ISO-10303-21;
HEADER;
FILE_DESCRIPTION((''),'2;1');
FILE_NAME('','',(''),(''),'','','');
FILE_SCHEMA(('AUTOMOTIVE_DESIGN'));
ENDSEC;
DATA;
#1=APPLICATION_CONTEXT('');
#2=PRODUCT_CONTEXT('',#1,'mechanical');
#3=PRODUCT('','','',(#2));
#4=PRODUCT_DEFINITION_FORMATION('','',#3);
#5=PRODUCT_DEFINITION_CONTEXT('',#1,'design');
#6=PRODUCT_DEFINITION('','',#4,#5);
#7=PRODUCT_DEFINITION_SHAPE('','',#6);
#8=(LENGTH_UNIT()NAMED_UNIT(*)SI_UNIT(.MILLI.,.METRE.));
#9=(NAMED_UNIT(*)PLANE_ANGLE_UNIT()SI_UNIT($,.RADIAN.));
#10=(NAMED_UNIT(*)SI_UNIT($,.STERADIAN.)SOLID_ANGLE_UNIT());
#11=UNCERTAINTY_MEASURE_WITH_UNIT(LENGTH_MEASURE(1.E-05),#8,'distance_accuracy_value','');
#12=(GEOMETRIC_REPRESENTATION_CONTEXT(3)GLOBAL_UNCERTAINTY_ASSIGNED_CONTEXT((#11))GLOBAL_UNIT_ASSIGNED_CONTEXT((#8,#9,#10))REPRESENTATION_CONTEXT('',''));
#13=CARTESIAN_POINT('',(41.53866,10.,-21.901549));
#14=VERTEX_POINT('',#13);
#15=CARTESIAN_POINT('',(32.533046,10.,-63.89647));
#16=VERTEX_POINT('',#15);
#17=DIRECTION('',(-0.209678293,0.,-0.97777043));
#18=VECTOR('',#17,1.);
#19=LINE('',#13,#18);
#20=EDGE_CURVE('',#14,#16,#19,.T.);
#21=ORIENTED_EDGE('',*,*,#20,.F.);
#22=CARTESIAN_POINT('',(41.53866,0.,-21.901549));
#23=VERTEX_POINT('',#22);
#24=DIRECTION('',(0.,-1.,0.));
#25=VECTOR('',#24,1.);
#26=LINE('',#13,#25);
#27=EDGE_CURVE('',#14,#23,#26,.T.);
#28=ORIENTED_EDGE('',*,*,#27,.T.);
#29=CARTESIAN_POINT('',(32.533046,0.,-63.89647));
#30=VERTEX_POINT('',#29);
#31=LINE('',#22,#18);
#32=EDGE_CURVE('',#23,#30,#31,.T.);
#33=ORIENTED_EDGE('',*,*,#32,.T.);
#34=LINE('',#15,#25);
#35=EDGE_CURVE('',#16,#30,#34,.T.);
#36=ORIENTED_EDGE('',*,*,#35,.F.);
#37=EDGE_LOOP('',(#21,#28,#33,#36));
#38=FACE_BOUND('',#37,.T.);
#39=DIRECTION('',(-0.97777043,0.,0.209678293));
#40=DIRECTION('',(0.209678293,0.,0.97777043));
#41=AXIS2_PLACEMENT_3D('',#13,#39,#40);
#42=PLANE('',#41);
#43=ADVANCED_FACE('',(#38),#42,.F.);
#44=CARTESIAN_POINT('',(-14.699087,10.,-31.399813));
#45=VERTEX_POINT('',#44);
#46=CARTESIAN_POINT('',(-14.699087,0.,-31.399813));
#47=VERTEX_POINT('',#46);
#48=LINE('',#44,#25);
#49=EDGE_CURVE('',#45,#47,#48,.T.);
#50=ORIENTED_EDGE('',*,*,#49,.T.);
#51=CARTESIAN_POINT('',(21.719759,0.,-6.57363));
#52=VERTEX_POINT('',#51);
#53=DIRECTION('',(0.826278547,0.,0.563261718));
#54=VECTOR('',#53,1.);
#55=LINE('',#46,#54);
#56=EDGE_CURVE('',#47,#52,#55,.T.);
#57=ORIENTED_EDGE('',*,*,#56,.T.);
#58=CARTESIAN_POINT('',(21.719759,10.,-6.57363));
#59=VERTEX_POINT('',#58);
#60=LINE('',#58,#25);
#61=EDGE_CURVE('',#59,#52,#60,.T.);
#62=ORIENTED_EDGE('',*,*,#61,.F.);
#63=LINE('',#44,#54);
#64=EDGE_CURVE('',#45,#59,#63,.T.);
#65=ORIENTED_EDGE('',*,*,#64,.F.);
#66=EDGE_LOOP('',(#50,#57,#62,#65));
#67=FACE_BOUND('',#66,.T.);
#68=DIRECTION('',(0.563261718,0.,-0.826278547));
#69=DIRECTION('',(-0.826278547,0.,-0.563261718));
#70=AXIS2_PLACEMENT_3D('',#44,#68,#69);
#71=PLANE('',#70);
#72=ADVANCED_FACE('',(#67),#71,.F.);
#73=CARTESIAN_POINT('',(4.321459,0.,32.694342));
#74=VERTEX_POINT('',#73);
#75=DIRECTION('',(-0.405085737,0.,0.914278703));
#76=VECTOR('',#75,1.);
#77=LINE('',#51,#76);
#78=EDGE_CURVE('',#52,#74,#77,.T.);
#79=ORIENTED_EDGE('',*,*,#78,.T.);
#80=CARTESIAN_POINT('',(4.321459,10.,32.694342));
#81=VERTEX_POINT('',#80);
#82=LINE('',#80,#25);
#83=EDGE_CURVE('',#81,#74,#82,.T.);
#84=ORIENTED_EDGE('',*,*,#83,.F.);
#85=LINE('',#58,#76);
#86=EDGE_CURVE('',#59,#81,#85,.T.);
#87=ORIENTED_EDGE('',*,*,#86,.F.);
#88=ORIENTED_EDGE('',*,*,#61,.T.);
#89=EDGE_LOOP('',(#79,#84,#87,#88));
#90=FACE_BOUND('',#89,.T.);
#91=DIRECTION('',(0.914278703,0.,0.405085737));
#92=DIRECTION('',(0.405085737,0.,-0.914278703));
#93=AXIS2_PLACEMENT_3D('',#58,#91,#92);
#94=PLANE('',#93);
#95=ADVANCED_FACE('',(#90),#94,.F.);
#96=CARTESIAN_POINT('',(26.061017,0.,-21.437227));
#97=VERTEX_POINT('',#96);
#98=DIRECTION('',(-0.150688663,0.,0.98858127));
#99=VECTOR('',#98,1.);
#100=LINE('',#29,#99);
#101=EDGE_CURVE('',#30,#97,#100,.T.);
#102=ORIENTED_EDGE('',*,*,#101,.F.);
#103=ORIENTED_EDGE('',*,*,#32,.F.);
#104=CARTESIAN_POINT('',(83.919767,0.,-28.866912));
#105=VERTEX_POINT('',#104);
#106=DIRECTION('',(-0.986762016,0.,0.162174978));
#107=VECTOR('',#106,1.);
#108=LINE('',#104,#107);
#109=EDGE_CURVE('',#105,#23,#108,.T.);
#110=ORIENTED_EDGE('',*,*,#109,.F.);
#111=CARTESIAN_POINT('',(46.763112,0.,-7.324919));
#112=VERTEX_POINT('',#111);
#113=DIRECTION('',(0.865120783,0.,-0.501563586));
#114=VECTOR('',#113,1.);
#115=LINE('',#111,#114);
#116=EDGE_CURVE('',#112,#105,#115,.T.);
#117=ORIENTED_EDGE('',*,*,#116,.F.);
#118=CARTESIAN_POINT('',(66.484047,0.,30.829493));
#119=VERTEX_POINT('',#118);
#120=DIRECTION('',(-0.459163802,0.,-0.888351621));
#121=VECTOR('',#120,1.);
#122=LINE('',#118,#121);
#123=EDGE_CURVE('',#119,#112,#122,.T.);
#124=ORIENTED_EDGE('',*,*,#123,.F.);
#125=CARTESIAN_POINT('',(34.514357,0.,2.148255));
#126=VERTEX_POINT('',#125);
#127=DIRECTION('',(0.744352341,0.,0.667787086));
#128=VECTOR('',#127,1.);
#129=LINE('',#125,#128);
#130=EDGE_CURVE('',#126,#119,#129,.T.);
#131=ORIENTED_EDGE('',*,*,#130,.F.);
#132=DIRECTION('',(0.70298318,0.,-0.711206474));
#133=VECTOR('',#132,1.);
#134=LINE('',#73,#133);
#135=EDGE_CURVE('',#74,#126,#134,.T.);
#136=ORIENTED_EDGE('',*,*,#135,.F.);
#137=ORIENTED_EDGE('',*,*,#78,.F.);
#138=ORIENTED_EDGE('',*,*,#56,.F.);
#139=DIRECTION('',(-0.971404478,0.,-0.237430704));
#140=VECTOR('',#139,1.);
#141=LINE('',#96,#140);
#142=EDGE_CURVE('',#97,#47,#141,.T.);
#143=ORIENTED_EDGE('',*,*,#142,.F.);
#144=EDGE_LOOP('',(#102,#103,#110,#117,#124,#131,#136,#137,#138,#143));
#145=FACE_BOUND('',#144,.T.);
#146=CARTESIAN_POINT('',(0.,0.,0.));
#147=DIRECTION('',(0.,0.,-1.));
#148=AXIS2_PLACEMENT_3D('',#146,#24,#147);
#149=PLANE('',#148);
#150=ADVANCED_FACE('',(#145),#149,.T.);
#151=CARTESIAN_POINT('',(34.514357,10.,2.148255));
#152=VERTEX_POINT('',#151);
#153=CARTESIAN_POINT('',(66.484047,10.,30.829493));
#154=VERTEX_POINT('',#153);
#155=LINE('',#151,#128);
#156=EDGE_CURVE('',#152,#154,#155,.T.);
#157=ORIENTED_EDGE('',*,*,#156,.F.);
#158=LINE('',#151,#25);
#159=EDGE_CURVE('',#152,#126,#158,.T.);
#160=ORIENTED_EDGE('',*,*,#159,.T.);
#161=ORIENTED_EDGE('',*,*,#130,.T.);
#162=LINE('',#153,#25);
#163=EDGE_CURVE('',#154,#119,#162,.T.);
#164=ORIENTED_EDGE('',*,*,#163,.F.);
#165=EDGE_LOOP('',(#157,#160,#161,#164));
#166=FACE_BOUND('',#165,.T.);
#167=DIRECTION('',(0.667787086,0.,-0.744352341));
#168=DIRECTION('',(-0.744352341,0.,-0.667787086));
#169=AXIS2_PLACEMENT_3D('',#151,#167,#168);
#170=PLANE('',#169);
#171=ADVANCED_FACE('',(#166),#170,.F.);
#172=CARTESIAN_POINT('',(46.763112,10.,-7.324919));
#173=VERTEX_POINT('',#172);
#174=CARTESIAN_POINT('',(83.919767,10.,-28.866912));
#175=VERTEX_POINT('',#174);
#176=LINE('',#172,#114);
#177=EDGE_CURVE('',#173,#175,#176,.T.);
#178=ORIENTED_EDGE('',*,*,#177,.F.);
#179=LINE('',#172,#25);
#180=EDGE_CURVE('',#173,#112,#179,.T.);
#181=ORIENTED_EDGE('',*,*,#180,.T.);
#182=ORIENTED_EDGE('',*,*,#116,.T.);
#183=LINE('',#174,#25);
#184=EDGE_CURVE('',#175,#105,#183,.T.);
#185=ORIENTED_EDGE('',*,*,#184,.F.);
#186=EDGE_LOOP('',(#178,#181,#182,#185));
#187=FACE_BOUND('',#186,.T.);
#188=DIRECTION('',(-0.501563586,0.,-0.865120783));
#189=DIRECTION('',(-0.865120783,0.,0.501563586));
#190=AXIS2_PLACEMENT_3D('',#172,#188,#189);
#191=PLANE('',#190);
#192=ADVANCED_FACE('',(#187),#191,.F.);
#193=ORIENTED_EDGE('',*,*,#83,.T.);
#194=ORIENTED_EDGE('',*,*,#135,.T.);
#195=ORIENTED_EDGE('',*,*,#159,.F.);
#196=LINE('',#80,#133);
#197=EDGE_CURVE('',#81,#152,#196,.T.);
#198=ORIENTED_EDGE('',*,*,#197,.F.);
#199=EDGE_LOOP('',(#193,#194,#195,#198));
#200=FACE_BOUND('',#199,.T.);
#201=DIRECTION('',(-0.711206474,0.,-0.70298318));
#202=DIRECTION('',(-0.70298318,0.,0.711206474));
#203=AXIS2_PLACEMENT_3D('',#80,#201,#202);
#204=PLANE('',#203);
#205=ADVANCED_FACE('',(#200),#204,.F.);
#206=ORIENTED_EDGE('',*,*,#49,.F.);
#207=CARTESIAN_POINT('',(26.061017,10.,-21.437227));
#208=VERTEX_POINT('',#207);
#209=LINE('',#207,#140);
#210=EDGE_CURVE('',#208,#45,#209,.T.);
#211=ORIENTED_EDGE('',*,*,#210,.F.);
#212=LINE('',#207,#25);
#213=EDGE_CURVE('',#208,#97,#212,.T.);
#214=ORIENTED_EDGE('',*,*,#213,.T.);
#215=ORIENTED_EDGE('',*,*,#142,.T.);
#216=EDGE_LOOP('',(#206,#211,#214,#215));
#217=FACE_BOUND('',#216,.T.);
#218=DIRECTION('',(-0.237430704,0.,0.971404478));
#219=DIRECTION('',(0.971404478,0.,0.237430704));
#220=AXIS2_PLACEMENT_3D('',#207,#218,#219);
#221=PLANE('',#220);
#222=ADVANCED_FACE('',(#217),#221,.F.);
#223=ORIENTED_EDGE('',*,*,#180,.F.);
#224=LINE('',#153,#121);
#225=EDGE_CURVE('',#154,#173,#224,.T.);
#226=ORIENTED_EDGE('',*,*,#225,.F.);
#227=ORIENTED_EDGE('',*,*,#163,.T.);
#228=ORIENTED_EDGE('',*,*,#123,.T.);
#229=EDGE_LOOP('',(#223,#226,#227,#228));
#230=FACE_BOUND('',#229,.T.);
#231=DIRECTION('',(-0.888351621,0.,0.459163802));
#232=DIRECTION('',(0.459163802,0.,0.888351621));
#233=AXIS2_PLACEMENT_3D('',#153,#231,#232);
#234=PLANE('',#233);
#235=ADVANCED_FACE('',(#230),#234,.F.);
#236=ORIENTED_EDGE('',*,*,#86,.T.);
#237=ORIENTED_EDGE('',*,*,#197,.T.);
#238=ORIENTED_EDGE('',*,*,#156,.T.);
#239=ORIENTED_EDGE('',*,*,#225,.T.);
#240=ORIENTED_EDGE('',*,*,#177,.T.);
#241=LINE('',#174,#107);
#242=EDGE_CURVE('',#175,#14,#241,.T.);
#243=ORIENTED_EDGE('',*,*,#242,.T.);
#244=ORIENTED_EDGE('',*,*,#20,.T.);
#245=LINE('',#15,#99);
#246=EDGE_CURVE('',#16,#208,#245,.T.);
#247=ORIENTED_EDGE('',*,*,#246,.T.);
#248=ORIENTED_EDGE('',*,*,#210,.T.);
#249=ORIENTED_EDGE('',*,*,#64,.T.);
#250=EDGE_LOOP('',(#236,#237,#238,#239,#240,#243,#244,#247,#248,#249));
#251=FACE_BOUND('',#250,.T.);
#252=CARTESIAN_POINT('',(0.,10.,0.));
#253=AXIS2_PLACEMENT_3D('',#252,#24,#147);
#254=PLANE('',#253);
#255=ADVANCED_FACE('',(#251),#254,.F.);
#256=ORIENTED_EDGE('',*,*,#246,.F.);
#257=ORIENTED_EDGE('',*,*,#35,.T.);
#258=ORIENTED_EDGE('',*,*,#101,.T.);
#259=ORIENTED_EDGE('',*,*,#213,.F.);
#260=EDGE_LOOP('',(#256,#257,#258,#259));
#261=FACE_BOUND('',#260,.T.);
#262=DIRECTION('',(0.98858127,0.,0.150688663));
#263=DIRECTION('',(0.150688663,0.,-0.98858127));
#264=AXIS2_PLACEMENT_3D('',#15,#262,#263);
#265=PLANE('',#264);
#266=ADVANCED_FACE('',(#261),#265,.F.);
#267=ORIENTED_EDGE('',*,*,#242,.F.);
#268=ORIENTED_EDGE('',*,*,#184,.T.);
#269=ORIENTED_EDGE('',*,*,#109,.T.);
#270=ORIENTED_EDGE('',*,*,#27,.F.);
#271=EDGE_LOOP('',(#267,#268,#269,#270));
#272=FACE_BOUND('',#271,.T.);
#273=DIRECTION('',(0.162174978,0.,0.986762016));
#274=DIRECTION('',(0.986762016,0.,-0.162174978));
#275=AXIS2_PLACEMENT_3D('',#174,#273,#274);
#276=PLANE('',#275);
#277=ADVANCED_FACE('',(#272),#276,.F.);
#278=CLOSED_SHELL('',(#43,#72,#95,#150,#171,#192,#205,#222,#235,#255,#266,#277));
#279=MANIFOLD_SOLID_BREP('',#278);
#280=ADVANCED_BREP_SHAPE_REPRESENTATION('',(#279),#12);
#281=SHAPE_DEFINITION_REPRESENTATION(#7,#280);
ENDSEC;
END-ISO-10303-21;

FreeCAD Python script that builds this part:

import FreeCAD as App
import Part
import Sketcher
from FreeCAD import Vector
Q = App.Units.Quantity


def add_polygon(sketch, points):
    """Adds a closed chain of lines whose ends are joined by coincident constraints."""
    first, n = sketch.GeometryCount, len(points)
    for a, b in zip(points, points[1:] + points[:1]):
        sketch.addGeometry(Part.LineSegment(App.Vector(*a, 0), App.Vector(*b, 0)), False)
    for i in range(n):
        sketch.addConstraint(Sketcher.Constraint("Coincident", first + i, 2, first + (i + 1) % n, 1))

doc = App.newDocument("Part")
body = doc.addObject("PartDesign::Body", "Body")

# Sketch on XZ plane
sketch1 = body.newObject("Sketcher::SketchObject", "Sketch")
sketch1.AttachmentSupport = (doc.getObject("XZ_Plane"), [""])
sketch1.MapMode = "FlatFace"
add_polygon(sketch1, [(33, -64), (26, -21), (-15, -31), (22, -7), (4, 33), (35, 2), (66, 31), (47, -7), (84, -29), (42, -22)])  # lines 0-9
sketch1.addConstraint([
    Sketcher.Constraint("Equal", 0, 3),
    Sketcher.Constraint("Equal", 3, 4),
    Sketcher.Constraint("Equal", 4, 5),
    Sketcher.Constraint("Equal", 5, 6),
    Sketcher.Constraint("Equal", 6, 7),
    Sketcher.Constraint("Equal", 7, 8),
    Sketcher.Constraint("Equal", 8, 9),
    Sketcher.Constraint("DistanceX", 3, 2, 2, 2, Q("17.3983 mm")),
    Sketcher.Constraint("DistanceX", 2, 2, 4, 2, Q("12.794598 mm")),
    Sketcher.Constraint("DistanceX", 2, 2, 8, 2, Q("19.818901 mm")),
    Sketcher.Constraint("Distance", 1, Q("41.959972 mm")),
    Sketcher.Constraint("Distance", 2, Q("44.07575 mm")),
    Sketcher.Constraint("DistanceX", -1, 1, 2, 2, Q("21.719759 mm")),
    Sketcher.Constraint("DistanceY", 2, 2, -1, 1, Q("6.57363 mm")),
    Sketcher.Constraint("DistanceY", -1, 1, 3, 2, Q("32.694342 mm")),
    Sketcher.Constraint("DistanceX", -1, 1, 6, 2, Q("46.763112 mm")),
    Sketcher.Constraint("DistanceY", 6, 2, -1, 1, Q("7.324919 mm")),
    Sketcher.Constraint("DistanceY", 7, 2, -1, 1, Q("28.866912 mm")),
    Sketcher.Constraint("DistanceY", 9, 2, -1, 1, Q("63.89647 mm")),
    Sketcher.Constraint("DistanceX", 2, 2, 0, 2, Q("4.341258 mm")),
])
pad1 = body.newObject("PartDesign::Pad", "Pad")
pad1.Profile = sketch1
pad1.Length = 10
pad1.Reversed = True

doc.recompute()
